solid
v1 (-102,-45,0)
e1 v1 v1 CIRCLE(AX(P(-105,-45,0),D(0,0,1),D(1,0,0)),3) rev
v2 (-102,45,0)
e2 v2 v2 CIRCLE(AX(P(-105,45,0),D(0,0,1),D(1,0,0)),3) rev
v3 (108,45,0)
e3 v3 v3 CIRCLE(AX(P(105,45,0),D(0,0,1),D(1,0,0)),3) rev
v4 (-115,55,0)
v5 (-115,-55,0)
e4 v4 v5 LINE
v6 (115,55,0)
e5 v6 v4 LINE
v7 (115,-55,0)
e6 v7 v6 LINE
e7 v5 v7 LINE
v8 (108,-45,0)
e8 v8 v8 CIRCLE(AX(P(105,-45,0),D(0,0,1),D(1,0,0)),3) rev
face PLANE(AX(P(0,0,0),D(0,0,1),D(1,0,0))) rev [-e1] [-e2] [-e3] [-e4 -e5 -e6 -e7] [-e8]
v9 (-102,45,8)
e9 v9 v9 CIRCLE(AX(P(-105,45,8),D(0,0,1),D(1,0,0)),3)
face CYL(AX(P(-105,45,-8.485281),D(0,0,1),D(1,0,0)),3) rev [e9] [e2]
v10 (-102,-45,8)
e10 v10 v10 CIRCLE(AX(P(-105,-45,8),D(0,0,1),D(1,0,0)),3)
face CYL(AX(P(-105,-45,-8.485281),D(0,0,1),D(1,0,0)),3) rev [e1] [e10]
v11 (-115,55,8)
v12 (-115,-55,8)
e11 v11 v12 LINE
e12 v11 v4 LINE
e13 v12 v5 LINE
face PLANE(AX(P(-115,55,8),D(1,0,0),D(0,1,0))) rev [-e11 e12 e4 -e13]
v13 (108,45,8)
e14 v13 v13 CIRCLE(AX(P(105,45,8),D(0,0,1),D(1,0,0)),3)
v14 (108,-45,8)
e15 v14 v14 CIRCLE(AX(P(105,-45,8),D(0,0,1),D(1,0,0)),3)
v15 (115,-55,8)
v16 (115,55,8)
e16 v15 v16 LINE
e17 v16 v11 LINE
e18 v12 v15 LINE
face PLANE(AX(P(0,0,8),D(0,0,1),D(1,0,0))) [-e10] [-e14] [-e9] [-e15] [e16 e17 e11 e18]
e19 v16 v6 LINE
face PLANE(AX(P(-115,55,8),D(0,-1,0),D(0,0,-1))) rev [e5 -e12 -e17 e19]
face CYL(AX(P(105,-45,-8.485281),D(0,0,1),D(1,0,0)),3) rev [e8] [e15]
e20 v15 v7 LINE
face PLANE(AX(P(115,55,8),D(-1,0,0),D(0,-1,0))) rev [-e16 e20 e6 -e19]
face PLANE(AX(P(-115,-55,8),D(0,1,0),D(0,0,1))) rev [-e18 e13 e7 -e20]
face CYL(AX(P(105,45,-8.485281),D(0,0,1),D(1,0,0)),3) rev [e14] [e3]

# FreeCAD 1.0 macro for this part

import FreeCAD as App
import Part
import Sketcher
from FreeCAD import Vector

doc = App.newDocument("Part")
params = doc.addObject("Spreadsheet::Sheet", "Params")
for row, (alias, value) in enumerate([
    ("sketch1_width", "230 mm"),
    ("sketch1_height", "110 mm"),
    ("pad1_length", "8 mm"),
    ("sketch2_diameter", "6 mm"),
    ("pocket1_length", "8 mm"),
], start=1):
    params.set(f"A{row}", alias)
    params.set(f"B{row}", "=" + value)
    params.setAlias(f"B{row}", alias)

body = doc.addObject("PartDesign::Body", "Body")

# Sketch on XY plane
sketch1 = body.newObject("Sketcher::SketchObject", "Sketch")
sketch1.AttachmentSupport = (doc.getObject("XY_Plane"), [""])
sketch1.MapMode = "FlatFace"
sketch1.addGeometry([
    Part.LineSegment(Vector(-115, 55, 0), Vector(-115, -55, 0)),
    Part.LineSegment(Vector(-115, -55, 0), Vector(115, -55, 0)),
    Part.LineSegment(Vector(115, -55, 0), Vector(115, 55, 0)),
    Part.LineSegment(Vector(115, 55, 0), Vector(-115, 55, 0)),
], False)
sketch1.addConstraint([
    Sketcher.Constraint("Coincident", 0, 2, 1, 1),
    Sketcher.Constraint("Coincident", 1, 2, 2, 1),
    Sketcher.Constraint("Coincident", 2, 2, 3, 1),
    Sketcher.Constraint("Coincident", 3, 2, 0, 1),
    Sketcher.Constraint("Vertical", 0),
    Sketcher.Constraint("Horizontal", 1),
    Sketcher.Constraint("Vertical", 2),
    Sketcher.Constraint("Horizontal", 3),
    Sketcher.Constraint("Symmetric", 0, 2, 2, 2, -1, 1),
    Sketcher.Constraint("DistanceX", 1, 1, 1, 2, 230.0),
    Sketcher.Constraint("DistanceY", 0, 2, 0, 1, 110.0),
])
sketch1.setExpression("Constraints[9]", "Params.sketch1_width")
sketch1.setExpression("Constraints[10]", "Params.sketch1_height")
pad1 = body.newObject("PartDesign::Pad", "Pad")
pad1.Profile = sketch1
pad1.setExpression("Length", "Params.pad1_length")

# Sketch on XY plane
sketch2 = body.newObject("Sketcher::SketchObject", "Sketch001")
sketch2.AttachmentSupport = (doc.getObject("XY_Plane"), [""])
sketch2.MapMode = "FlatFace"
sketch2.AttachmentOffset = App.Placement(Vector(0, 0, 8), App.Rotation())
sketch2.addGeometry([
    Part.Circle(Vector(-105, 45, 0), Vector(0, 0, 1), 3),
    Part.Circle(Vector(-105, -45, 0), Vector(0, 0, 1), 3),
    Part.Circle(Vector(105, -45, 0), Vector(0, 0, 1), 3),
    Part.Circle(Vector(105, 45, 0), Vector(0, 0, 1), 3),
], False)
sketch2.addConstraint([
    Sketcher.Constraint("Equal", 0, 1),
    Sketcher.Constraint("Equal", 1, 2),
    Sketcher.Constraint("Equal", 2, 3),
    Sketcher.Constraint("Symmetric", 0, 3, 2, 3, -1, 1),
    Sketcher.Constraint("Symmetric", 1, 3, 3, 3, -1, 1),
    Sketcher.Constraint("Symmetric", 1, 3, 2, 3, -2),
    Sketcher.Constraint("Diameter", 0, 6.0),
    Sketcher.Constraint("DistanceX", 0, 3, -1, 1, 105.0),
    Sketcher.Constraint("DistanceY", -1, 1, 0, 3, 45.0),
])
sketch2.setExpression("Constraints[6]", "Params.sketch2_diameter")
pocket1 = body.newObject("PartDesign::Pocket", "Pocket")
pocket1.Profile = sketch2
pocket1.setExpression("Length", "Params.pocket1_length")

doc.recompute()
